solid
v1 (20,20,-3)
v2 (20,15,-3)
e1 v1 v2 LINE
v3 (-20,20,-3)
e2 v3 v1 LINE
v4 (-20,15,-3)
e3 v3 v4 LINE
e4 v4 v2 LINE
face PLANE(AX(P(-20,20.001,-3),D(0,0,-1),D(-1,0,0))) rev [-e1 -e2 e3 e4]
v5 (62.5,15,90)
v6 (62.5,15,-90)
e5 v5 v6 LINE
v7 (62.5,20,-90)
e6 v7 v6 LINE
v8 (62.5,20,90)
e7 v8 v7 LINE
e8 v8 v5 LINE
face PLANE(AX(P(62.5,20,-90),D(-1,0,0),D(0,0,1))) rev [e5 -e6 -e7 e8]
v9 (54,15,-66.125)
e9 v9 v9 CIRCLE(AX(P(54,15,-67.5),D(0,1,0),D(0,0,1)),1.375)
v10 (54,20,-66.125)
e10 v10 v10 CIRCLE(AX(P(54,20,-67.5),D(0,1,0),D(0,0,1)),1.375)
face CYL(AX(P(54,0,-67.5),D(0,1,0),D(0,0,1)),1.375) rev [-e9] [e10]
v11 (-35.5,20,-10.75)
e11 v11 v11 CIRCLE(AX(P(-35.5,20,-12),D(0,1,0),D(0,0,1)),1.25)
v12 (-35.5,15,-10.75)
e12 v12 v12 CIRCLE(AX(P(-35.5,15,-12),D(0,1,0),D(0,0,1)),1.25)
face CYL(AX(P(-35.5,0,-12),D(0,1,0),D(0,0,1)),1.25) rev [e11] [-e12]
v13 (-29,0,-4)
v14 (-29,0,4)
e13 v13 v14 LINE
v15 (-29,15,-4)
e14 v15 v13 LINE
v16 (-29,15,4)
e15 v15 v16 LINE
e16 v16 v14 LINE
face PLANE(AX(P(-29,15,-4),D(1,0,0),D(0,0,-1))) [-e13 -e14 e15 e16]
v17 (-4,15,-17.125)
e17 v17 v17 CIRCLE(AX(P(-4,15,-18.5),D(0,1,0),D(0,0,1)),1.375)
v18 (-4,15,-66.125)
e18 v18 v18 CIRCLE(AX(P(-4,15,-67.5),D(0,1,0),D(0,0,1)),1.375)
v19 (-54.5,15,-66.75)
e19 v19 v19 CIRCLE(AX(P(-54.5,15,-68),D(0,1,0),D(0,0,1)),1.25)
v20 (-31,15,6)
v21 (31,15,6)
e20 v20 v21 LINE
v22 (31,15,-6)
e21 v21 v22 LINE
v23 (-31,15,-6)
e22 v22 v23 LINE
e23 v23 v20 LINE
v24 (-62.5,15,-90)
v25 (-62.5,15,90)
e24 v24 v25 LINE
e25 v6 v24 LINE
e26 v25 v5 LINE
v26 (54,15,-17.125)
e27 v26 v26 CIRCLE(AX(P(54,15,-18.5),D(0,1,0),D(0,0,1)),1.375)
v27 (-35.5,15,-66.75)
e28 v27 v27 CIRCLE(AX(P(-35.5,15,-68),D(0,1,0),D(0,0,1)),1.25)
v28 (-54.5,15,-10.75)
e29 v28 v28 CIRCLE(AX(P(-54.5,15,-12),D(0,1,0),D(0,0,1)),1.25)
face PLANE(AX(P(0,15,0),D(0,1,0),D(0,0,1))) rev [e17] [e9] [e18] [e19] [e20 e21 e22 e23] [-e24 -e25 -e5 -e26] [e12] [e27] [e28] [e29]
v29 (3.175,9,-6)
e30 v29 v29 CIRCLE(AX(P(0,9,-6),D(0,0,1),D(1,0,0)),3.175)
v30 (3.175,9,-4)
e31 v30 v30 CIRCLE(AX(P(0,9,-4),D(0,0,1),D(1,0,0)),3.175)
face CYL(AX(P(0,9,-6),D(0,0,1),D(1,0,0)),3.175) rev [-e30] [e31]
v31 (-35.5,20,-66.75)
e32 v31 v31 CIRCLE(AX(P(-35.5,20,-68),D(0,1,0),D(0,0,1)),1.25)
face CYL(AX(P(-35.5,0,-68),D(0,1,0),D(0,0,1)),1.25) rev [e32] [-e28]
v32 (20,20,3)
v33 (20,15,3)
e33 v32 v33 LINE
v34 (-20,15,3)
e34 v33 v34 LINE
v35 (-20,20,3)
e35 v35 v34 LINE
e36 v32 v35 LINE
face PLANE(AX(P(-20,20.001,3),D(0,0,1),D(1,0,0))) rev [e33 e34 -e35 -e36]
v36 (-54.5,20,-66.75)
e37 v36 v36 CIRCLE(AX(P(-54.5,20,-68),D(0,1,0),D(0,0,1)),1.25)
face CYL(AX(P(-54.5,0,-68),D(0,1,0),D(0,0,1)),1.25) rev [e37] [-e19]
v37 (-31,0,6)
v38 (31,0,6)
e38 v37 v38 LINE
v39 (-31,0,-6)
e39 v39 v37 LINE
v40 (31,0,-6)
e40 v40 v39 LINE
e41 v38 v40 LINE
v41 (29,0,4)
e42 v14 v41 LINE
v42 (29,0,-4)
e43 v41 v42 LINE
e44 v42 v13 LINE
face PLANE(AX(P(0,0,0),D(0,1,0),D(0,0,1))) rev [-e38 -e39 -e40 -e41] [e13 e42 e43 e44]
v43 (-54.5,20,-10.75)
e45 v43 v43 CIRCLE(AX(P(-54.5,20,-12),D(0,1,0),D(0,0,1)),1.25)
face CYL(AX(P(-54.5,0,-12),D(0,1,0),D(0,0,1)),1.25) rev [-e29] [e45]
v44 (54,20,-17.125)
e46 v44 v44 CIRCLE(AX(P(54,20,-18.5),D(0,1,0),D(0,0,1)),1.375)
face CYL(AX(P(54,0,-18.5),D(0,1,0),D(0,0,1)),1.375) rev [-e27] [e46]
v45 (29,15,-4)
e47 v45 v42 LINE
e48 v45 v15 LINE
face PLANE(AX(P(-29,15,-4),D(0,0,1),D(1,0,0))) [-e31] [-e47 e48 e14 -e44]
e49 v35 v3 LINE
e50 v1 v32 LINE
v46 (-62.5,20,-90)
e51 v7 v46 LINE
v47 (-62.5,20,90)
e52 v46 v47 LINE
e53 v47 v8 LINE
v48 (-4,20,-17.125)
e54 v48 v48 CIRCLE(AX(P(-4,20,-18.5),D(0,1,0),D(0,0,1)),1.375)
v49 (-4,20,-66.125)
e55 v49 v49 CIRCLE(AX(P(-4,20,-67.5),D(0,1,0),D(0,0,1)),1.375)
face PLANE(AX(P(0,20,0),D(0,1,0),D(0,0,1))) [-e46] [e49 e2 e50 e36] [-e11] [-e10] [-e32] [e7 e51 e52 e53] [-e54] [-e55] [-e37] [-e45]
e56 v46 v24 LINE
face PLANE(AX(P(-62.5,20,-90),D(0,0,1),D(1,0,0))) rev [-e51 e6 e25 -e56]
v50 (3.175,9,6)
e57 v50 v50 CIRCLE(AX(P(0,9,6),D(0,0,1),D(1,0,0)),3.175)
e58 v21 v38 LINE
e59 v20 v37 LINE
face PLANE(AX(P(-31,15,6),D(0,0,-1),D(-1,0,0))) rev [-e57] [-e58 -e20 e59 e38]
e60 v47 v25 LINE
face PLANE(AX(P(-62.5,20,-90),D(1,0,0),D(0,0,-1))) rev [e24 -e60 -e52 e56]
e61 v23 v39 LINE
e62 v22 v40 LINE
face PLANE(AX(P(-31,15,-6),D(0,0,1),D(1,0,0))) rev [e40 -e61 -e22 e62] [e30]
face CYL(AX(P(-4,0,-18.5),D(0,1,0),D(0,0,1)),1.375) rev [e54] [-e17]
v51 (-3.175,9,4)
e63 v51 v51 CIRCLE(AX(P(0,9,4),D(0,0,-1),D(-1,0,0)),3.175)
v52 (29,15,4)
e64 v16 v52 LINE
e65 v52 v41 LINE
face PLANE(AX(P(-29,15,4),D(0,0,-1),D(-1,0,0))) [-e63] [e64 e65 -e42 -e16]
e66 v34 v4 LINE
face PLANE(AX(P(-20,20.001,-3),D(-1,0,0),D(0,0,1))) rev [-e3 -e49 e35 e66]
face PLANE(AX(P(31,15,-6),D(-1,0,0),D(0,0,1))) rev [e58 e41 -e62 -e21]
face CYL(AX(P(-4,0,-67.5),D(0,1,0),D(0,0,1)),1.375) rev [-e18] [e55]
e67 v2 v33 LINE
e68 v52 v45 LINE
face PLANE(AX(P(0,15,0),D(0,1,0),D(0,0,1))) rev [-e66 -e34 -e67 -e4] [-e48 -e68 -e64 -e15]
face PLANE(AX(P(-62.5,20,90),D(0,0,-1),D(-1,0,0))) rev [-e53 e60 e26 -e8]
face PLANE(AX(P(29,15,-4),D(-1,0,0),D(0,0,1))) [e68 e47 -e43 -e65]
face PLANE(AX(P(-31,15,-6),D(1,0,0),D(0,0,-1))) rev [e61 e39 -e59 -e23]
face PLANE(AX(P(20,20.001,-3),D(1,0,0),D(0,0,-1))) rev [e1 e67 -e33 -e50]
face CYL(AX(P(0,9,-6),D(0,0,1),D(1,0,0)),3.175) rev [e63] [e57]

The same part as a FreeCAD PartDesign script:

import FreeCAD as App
import Part
import Sketcher

V = App.Vector
Q = App.Units.Quantity

doc = App.newDocument("Part")
body = doc.addObject("PartDesign::Body", "Body")

sketch1 = doc.addObject("Sketcher::SketchObject", "Sketch")
body.addObject(sketch1)
sketch1.AttachmentSupport = (doc.XZ_Plane, [""])
sketch1.MapMode = "FlatFace"
sketch1.addGeometry([
    Part.LineSegment(V(-31, -6, 0), V(-31, 6, 0)),
    Part.LineSegment(V(-31, 6, 0), V(31, 6, 0)),
    Part.LineSegment(V(31, 6, 0), V(31, -6, 0)),
    Part.LineSegment(V(31, -6, 0), V(-31, -6, 0)),
    Part.LineSegment(V(29, 4, 0), V(-29, 4, 0)),
    Part.LineSegment(V(-29, 4, 0), V(-29, -4, 0)),
    Part.LineSegment(V(-29, -4, 0), V(29, -4, 0)),
    Part.LineSegment(V(29, -4, 0), V(29, 4, 0)),
], False)
sketch1.addConstraint([
    Sketcher.Constraint("Coincident", 0, 2, 1, 1),
    Sketcher.Constraint("Coincident", 1, 2, 2, 1),
    Sketcher.Constraint("Coincident", 2, 2, 3, 1),
    Sketcher.Constraint("Coincident", 3, 2, 0, 1),
    Sketcher.Constraint("Coincident", 4, 2, 5, 1),
    Sketcher.Constraint("Coincident", 5, 2, 6, 1),
    Sketcher.Constraint("Coincident", 6, 2, 7, 1),
    Sketcher.Constraint("Coincident", 7, 2, 4, 1),
    Sketcher.Constraint("Vertical", 0),
    Sketcher.Constraint("Horizontal", 1),
    Sketcher.Constraint("Vertical", 2),
    Sketcher.Constraint("Horizontal", 3),
    Sketcher.Constraint("Horizontal", 4),
    Sketcher.Constraint("Vertical", 5),
    Sketcher.Constraint("Horizontal", 6),
    Sketcher.Constraint("Vertical", 7),
    Sketcher.Constraint("Symmetric", 0, 2, 2, 2, -1, 1),
    Sketcher.Constraint("Symmetric", 4, 2, 6, 2, -1, 1),
    Sketcher.Constraint("DistanceX", 1, 1, 1, 2, Q("62 mm")),
    Sketcher.Constraint("DistanceX", 4, 2, 4, 1, Q("58 mm")),
    Sketcher.Constraint("DistanceY", 0, 1, 0, 2, Q("12 mm")),
    Sketcher.Constraint("DistanceY", 5, 2, 5, 1, Q("8 mm")),
])
pad1 = doc.addObject("PartDesign::Pad", "Pad")
body.addObject(pad1)
pad1.Profile = sketch1
pad1.Length = 15
pad1.Reversed = True

sketch2 = doc.addObject("Sketcher::SketchObject", "Sketch001")
body.addObject(sketch2)
sketch2.AttachmentSupport = (doc.XY_Plane, [""])
sketch2.MapMode = "FlatFace"
sketch2.AttachmentOffset = App.Placement(V(0, 0, 6), App.Rotation())
sketch2.addGeometry(Part.Circle(V(0, 9, 0), V(0, 0, 1), 3.2), False)
sketch2.addConstraint([
    Sketcher.Constraint("PointOnObject", 0, 3, -2),
    Sketcher.Constraint("Diameter", 0, Q("6.35 mm")),
    Sketcher.Constraint("DistanceY", -1, 1, 0, 3, Q("9 mm")),
])
pocket1 = doc.addObject("PartDesign::Pocket", "Pocket")
body.addObject(pocket1)
pocket1.Profile = sketch2
pocket1.Type = "ThroughAll"

sketch3 = doc.addObject("Sketcher::SketchObject", "Sketch002")
body.addObject(sketch3)
sketch3.AttachmentSupport = (doc.XZ_Plane, [""])
sketch3.MapMode = "FlatFace"
sketch3.AttachmentOffset = App.Placement(V(0, 0, -15), App.Rotation())
sketch3.addGeometry([
    Part.LineSegment(V(-62, -90, 0), V(-62, 90, 0)),
    Part.LineSegment(V(-62, 90, 0), V(62, 90, 0)),
    Part.LineSegment(V(62, 90, 0), V(62, -90, 0)),
    Part.LineSegment(V(62, -90, 0), V(-62, -90, 0)),
], False)
sketch3.addConstraint([
    Sketcher.Constraint("Coincident", 0, 2, 1, 1),
    Sketcher.Constraint("Coincident", 1, 2, 2, 1),
    Sketcher.Constraint("Coincident", 2, 2, 3, 1),
    Sketcher.Constraint("Coincident", 3, 2, 0, 1),
    Sketcher.Constraint("Vertical", 0),
    Sketcher.Constraint("Horizontal", 1),
    Sketcher.Constraint("Vertical", 2),
    Sketcher.Constraint("Horizontal", 3),
    Sketcher.Constraint("Symmetric", 0, 2, 2, 2, -1, 1),
    Sketcher.Constraint("DistanceX", 1, 1, 1, 2, Q("125 mm")),
    Sketcher.Constraint("DistanceY", 0, 1, 0, 2, Q("180 mm")),
])
pad2 = doc.addObject("PartDesign::Pad", "Pad001")
body.addObject(pad2)
pad2.Profile = sketch3
pad2.Length = 5
pad2.Reversed = True

sketch4 = doc.addObject("Sketcher::SketchObject", "Sketch003")
body.addObject(sketch4)
sketch4.AttachmentSupport = (doc.XZ_Plane, [""])
sketch4.MapMode = "FlatFace"
sketch4.AttachmentOffset = App.Placement(V(0, 0, -15), App.Rotation())
sketch4.addGeometry([
    Part.LineSegment(V(20, -3, 0), V(20, 3, 0)),
    Part.LineSegment(V(20, 3, 0), V(-20, 3, 0)),
    Part.LineSegment(V(-20, 3, 0), V(-20, -3, 0)),
    Part.LineSegment(V(-20, -3, 0), V(20, -3, 0)),
], False)
sketch4.addConstraint([
    Sketcher.Constraint("Coincident", 0, 2, 1, 1),
    Sketcher.Constraint("Coincident", 1, 2, 2, 1),
    Sketcher.Constraint("Coincident", 2, 2, 3, 1),
    Sketcher.Constraint("Coincident", 3, 2, 0, 1),
    Sketcher.Constraint("Vertical", 0),
    Sketcher.Constraint("Horizontal", 1),
    Sketcher.Constraint("Vertical", 2),
    Sketcher.Constraint("Horizontal", 3),
    Sketcher.Constraint("Symmetric", 0, 2, 2, 2, -1, 1),
    Sketcher.Constraint("DistanceX", 1, 2, 1, 1, Q("40 mm")),
    Sketcher.Constraint("DistanceY", 0, 1, 0, 2, Q("6 mm")),
])
pocket2 = doc.addObject("PartDesign::Pocket", "Pocket001")
body.addObject(pocket2)
pocket2.Profile = sketch4
pocket2.Type = "UpToFirst"

sketch5 = doc.addObject("Sketcher::SketchObject", "Sketch004")
body.addObject(sketch5)
sketch5.AttachmentSupport = (doc.XZ_Plane, [""])
sketch5.MapMode = "FlatFace"
sketch5.AttachmentOffset = App.Placement(V(0, 0, -20), App.Rotation())
sketch5.addGeometry([
    Part.Circle(V(54, -67.5, 0), V(0, 0, 1), 1.4),
    Part.Circle(V(54, -18.5, 0), V(0, 0, 1), 1.4),
    Part.Circle(V(-4, -67.5, 0), V(0, 0, 1), 1.4),
    Part.Circle(V(-4, -18.5, 0), V(0, 0, 1), 1.4),
], False)
sketch5.addConstraint([
    Sketcher.Constraint("Equal", 0, 1),
    Sketcher.Constraint("Equal", 1, 2),
    Sketcher.Constraint("Equal", 2, 3),
    Sketcher.Constraint("Horizontal", 0, 3, 2, 3),
    Sketcher.Constraint("Horizontal", 1, 3, 3, 3),
    Sketcher.Constraint("Vertical", 0, 3, 1, 3),
    Sketcher.Constraint("Vertical", 2, 3, 3, 3),
    Sketcher.Constraint("Diameter", 0, Q("2.75 mm")),
    Sketcher.Constraint("DistanceX", -1, 1, 0, 3, Q("54 mm")),
    Sketcher.Constraint("DistanceX", 2, 3, -1, 1, Q("4 mm")),
    Sketcher.Constraint("DistanceY", 0, 3, 1, 3, Q("49 mm")),
    Sketcher.Constraint("DistanceY", 0, 3, -1, 1, Q("67.5 mm")),
])
pocket3 = doc.addObject("PartDesign::Pocket", "Pocket002")
body.addObject(pocket3)
pocket3.Profile = sketch5
pocket3.Type = "ThroughAll"
pocket3.Midplane = True

sketch6 = doc.addObject("Sketcher::SketchObject", "Sketch005")
body.addObject(sketch6)
sketch6.AttachmentSupport = (doc.XZ_Plane, [""])
sketch6.MapMode = "FlatFace"
sketch6.AttachmentOffset = App.Placement(V(0, 0, -20), App.Rotation())
sketch6.addGeometry([
    Part.Circle(V(-35.5, -68, 0), V(0, 0, 1), 1.2),
    Part.Circle(V(-54.5, -68, 0), V(0, 0, 1), 1.2),
    Part.Circle(V(-35.5, -12, 0), V(0, 0, 1), 1.2),
    Part.Circle(V(-54.5, -12, 0), V(0, 0, 1), 1.2),
], False)
sketch6.addConstraint([
    Sketcher.Constraint("Equal", 0, 1),
    Sketcher.Constraint("Equal", 1, 2),
    Sketcher.Constraint("Equal", 2, 3),
    Sketcher.Constraint("Horizontal", 0, 3, 1, 3),
    Sketcher.Constraint("Horizontal", 2, 3, 3, 3),
    Sketcher.Constraint("Vertical", 0, 3, 2, 3),
    Sketcher.Constraint("Vertical", 1, 3, 3, 3),
    Sketcher.Constraint("Diameter", 0, Q("2.5 mm")),
    Sketcher.Constraint("DistanceY", 0, 3, -1, 1, Q("68 mm")),
    Sketcher.Constraint("DistanceY", 2, 3, -1, 1, Q("12 mm")),
    Sketcher.Constraint("DistanceX", 1, 3, 0, 3, Q("19 mm")),
    Sketcher.Constraint("DistanceX", 0, 3, -1, 1, Q("35.5 mm")),
])
pocket4 = doc.addObject("PartDesign::Pocket", "Pocket003")
body.addObject(pocket4)
pocket4.Profile = sketch6
pocket4.Type = "ThroughAll"
pocket4.Midplane = True

doc.recompute()
